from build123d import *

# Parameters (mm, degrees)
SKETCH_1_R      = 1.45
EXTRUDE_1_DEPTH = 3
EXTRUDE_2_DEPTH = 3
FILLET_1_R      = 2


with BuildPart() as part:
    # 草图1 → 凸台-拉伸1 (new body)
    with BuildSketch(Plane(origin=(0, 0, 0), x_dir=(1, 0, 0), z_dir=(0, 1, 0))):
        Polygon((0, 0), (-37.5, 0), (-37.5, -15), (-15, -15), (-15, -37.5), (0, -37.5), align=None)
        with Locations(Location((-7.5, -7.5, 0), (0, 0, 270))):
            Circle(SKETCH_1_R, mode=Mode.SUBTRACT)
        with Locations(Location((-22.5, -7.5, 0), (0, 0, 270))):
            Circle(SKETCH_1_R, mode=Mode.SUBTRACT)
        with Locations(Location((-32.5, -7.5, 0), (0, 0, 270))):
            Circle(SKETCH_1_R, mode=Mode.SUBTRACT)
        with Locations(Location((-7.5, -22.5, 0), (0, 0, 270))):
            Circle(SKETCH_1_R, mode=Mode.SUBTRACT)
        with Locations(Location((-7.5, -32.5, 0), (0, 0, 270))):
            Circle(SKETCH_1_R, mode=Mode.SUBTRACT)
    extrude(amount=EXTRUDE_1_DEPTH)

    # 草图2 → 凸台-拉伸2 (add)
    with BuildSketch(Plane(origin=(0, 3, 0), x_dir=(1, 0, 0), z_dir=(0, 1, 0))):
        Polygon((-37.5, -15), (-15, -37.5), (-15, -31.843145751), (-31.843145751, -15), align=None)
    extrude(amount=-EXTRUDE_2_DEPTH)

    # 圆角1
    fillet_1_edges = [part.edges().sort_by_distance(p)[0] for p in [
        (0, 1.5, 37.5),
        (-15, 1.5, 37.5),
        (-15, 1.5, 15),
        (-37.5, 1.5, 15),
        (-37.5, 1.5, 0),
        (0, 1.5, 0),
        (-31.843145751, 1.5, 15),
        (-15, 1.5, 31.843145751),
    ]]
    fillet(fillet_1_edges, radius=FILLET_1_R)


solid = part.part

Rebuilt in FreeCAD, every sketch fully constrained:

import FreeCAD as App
import Part
import Sketcher

V = App.Vector


def edges_at(feature, points):
    """Names of the edges that pass closest to the given points."""
    edges = feature.Shape.Edges
    near = lambda p: min(range(len(edges)), key=lambda i: edges[i].distToShape(Part.Vertex(*p))[0])
    return sorted({f"Edge{near(p) + 1}" for p in points})

doc = App.newDocument("Part")
body = doc.addObject("PartDesign::Body", "Body")

# Sketch on XZ plane
sketch1 = doc.addObject("Sketcher::SketchObject", "Sketch")
body.addObject(sketch1)
sketch1.AttachmentSupport = (doc.XZ_Plane, [""])
sketch1.MapMode = "FlatFace"
sketch1.addGeometry([
    Part.LineSegment(V(0, 0, 0), V(-37.5, 0, 0)),  # 0
    Part.LineSegment(V(-37.5, 0, 0), V(-37.5, 15, 0)),  # 1
    Part.LineSegment(V(-37.5, 15, 0), V(-15, 15, 0)),  # 2
    Part.LineSegment(V(-15, 15, 0), V(-15, 37.5, 0)),  # 3
    Part.LineSegment(V(-15, 37.5, 0), V(0, 37.5, 0)),  # 4
    Part.LineSegment(V(0, 37.5, 0), V(0, 0, 0)),  # 5
    Part.Circle(V(-7.5, 32.5, 0), V(0, 0, 1), 1.4),  # 6
    Part.Circle(V(-7.5, 22.5, 0), V(0, 0, 1), 1.4),  # 7
    Part.Circle(V(-32.5, 7.5, 0), V(0, 0, 1), 1.4),  # 8
    Part.Circle(V(-22.5, 7.5, 0), V(0, 0, 1), 1.4),  # 9
    Part.Circle(V(-7.5, 7.5, 0), V(0, 0, 1), 1.4),  # 10
], False)
sketch1.addConstraint([
    Sketcher.Constraint("Coincident", 0, 2, 1, 1),
    Sketcher.Constraint("Coincident", 1, 2, 2, 1),
    Sketcher.Constraint("Coincident", 2, 2, 3, 1),
    Sketcher.Constraint("Coincident", 3, 2, 4, 1),
    Sketcher.Constraint("Coincident", 4, 2, 5, 1),
    Sketcher.Constraint("Coincident", 5, 2, 0, 1),
    Sketcher.Constraint("Horizontal", 0),
    Sketcher.Constraint("Vertical", 1),
    Sketcher.Constraint("Horizontal", 2),
    Sketcher.Constraint("Vertical", 3),
    Sketcher.Constraint("Horizontal", 4),
    Sketcher.Constraint("Vertical", 5),
    Sketcher.Constraint("Coincident", 5, 2, -1, 1),
    Sketcher.Constraint("Equal", 6, 7),
    Sketcher.Constraint("Equal", 7, 8),
    Sketcher.Constraint("Equal", 8, 9),
    Sketcher.Constraint("Equal", 9, 10),
    Sketcher.Constraint("Horizontal", 8, 3, 9, 3),
    Sketcher.Constraint("Horizontal", 9, 3, 10, 3),
    Sketcher.Constraint("Vertical", 6, 3, 7, 3),
    Sketcher.Constraint("Vertical", 7, 3, 10, 3),
    Sketcher.Constraint("Equal", 4, 1),
    Sketcher.Constraint("Equal", 2, 3),
    Sketcher.Constraint("Diameter", 6, 2.9),
    Sketcher.Constraint("DistanceX", 4, 1, 4, 2, 15.0),
    Sketcher.Constraint("DistanceX", 0, 2, 0, 1, 37.5),
    Sketcher.Constraint("DistanceY", 7, 3, 6, 3, 10.0),
    Sketcher.Constraint("DistanceX", 8, 3, 7, 3, 25.0),
    Sketcher.Constraint("DistanceY", 8, 3, 7, 3, 15.0),
    Sketcher.Constraint("DistanceX", 8, 3, 9, 3, 10.0),
    Sketcher.Constraint("DistanceX", 0, 2, 8, 3, 5.0),
    Sketcher.Constraint("DistanceY", 6, 3, 3, 2, 5.0),
])
pad1 = doc.addObject("PartDesign::Pad", "Pad")
body.addObject(pad1)
pad1.Profile = sketch1
pad1.Length = 3
pad1.Reversed = True

# Sketch on XZ plane
sketch2 = doc.addObject("Sketcher::SketchObject", "Sketch001")
body.addObject(sketch2)
sketch2.AttachmentSupport = (doc.XZ_Plane, [""])
sketch2.MapMode = "FlatFace"
sketch2.AttachmentOffset = App.Placement(V(0, 0, -3), App.Rotation())
sketch2.addGeometry([
    Part.LineSegment(V(-38, 15, 0), V(-15, 38, 0)),
    Part.LineSegment(V(-15, 38, 0), V(-15, 32, 0)),
    Part.LineSegment(V(-15, 32, 0), V(-32, 15, 0)),
    Part.LineSegment(V(-32, 15, 0), V(-38, 15, 0)),
], False)
sketch2.addConstraint([
    Sketcher.Constraint("Coincident", 0, 2, 1, 1),
    Sketcher.Constraint("Coincident", 1, 2, 2, 1),
    Sketcher.Constraint("Coincident", 2, 2, 3, 1),
    Sketcher.Constraint("Coincident", 3, 2, 0, 1),
    Sketcher.Constraint("Vertical", 1),
    Sketcher.Constraint("Horizontal", 3),
    Sketcher.Constraint("Parallel", 0, 2),
    Sketcher.Constraint("Equal", 3, 1),
    Sketcher.Constraint("DistanceX", 0, 2, -1, 1, 15.0),
    Sketcher.Constraint("DistanceY", -1, 1, 2, 2, 15.0),
    Sketcher.Constraint("DistanceY", -1, 1, 0, 2, 37.5),
    Sketcher.Constraint("DistanceX", 3, 2, 3, 1, 5.656854),
])
pad2 = doc.addObject("PartDesign::Pad", "Pad001")
body.addObject(pad2)
pad2.Profile = sketch2
pad2.Length = 3
doc.recompute()

fillet = doc.addObject("PartDesign::Fillet", "Fillet")
body.addObject(fillet)
fillet.Base = (pad2, edges_at(pad2, [
    (0, 1.5, 37.5),
    (-15, 1.5, 37.5),
    (-15, 1.5, 15),
    (-37.5, 1.5, 15),
    (-37.5, 1.5, 0),
    (0, 1.5, 0),
    (-31.843, 1.5, 15),
    (-15, 1.5, 31.843),
]))
fillet.Radius = 2

doc.recompute()
